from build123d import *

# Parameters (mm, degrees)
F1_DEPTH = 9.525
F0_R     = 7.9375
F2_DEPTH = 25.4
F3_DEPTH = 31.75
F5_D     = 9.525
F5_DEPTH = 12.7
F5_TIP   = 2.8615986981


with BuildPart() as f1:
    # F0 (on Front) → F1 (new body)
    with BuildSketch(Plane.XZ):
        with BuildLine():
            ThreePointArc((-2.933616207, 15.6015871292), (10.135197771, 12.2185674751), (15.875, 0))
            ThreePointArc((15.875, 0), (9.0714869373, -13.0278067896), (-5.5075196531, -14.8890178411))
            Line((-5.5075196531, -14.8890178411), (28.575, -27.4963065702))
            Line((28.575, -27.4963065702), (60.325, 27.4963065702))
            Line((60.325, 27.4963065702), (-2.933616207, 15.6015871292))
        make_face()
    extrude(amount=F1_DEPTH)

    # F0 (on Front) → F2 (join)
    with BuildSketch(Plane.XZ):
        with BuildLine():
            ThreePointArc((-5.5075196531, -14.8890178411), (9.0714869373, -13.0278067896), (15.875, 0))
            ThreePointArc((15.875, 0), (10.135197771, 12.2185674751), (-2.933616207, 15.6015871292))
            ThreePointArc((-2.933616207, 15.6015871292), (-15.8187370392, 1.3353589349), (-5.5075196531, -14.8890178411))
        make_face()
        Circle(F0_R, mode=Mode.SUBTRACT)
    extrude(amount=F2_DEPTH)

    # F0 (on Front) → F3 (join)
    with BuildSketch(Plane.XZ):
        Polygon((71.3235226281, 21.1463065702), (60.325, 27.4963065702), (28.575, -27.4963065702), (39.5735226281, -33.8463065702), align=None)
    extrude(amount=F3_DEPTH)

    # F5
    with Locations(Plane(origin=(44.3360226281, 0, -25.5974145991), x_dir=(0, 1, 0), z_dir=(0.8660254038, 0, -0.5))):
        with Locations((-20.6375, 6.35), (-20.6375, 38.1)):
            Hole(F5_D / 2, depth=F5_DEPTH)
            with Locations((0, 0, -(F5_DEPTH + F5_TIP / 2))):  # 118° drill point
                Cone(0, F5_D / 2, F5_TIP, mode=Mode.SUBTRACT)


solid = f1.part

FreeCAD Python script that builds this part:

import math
import FreeCAD as App
import Part
import Sketcher

V = App.Vector
Q = App.Units.Quantity

doc = App.newDocument("Part")
body = doc.addObject("PartDesign::Body", "Body")

# Sketch on XZ plane
sketch1 = body.newObject("Sketcher::SketchObject", "Sketch")
sketch1.AttachmentSupport = (doc.getObject("XZ_Plane"), [""])
sketch1.MapMode = "FlatFace"
sketch1.addGeometry([
    Part.ArcOfCircle(Part.Circle(V(0, 0, 0), V(0, 0, 1), 15.875), math.radians(0), math.radians(100.649164)),  # 0
    Part.ArcOfCircle(Part.Circle(V(0, 0, 0), V(0, 0, 1), 15.875), math.radians(-110.299677), math.radians(0)),  # 1
    Part.LineSegment(V(-5.50752, -14.889018, 0), V(28.575, -27.496307, 0)),  # 2
    Part.LineSegment(V(28.575, -27.496307, 0), V(60.325, 27.496307, 0)),  # 3
    Part.LineSegment(V(60.325, 27.496307, 0), V(-2.933616, 15.601587, 0)),  # 4
], False)
sketch1.addConstraint([
    Sketcher.Constraint("Tangent", 0, 1, 1, 2),
    Sketcher.Constraint("Tangent", 1, 1, 2, 1),
    Sketcher.Constraint("Coincident", 2, 2, 3, 1),
    Sketcher.Constraint("Coincident", 3, 2, 4, 1),
    Sketcher.Constraint("Tangent", 4, 2, 0, 2),
    Sketcher.Constraint("Coincident", 0, 3, -1, 1),
    Sketcher.Constraint("Equal", 0, 1),
    Sketcher.Constraint("PointOnObject", 0, 1, -1),
    Sketcher.Constraint("Angle", 3, Q("60 deg")),
    Sketcher.Constraint("Radius", 0, Q("0.625 in")),
    Sketcher.Constraint("Distance", 3, Q("2.5 in")),
    Sketcher.Constraint("DistanceX", 0, 1, 2, 2, Q("0.5 in")),
    Sketcher.Constraint("DistanceX", 1, 1, -1, 1, 5.50752),
])
pad1 = body.newObject("PartDesign::Pad", "Pad")
pad1.Profile = sketch1
pad1.Length = Q("0.375 in")

# Sketch on XZ plane
sketch2 = body.newObject("Sketcher::SketchObject", "Sketch001")
sketch2.AttachmentSupport = (doc.getObject("XZ_Plane"), [""])
sketch2.MapMode = "FlatFace"
sketch2.addGeometry([
    Part.ArcOfCircle(Part.Circle(V(0, 0, 0), V(0, 0, 1), 15.875), math.radians(-110.299677), math.radians(0)),
    Part.ArcOfCircle(Part.Circle(V(0, 0, 0), V(0, 0, 1), 15.875), math.radians(0), math.radians(100.649164)),
    Part.ArcOfCircle(Part.Circle(V(0, 0, 0), V(0, 0, 1), 15.875), math.radians(100.649164), math.radians(249.700323)),
    Part.Circle(V(0, 0, 0), V(0, 0, 1), 7.9375),
], False)
sketch2.addConstraint([
    Sketcher.Constraint("Tangent", 0, 2, 1, 1),
    Sketcher.Constraint("Tangent", 1, 2, 2, 1),
    Sketcher.Constraint("Tangent", 2, 2, 0, 1),
    Sketcher.Constraint("Coincident", 0, 3, -1, 1),
    Sketcher.Constraint("Coincident", 3, 3, -1, 1),
    Sketcher.Constraint("PointOnObject", 0, 2, -1),
    Sketcher.Constraint("Diameter", 3, Q("0.625 in")),
    Sketcher.Constraint("Radius", 0, Q("0.625 in")),
    Sketcher.Constraint("DistanceX", 2, 2, -1, 1, 5.50752),
    Sketcher.Constraint("DistanceX", 1, 2, -1, 1, 2.933616),
])
pad2 = body.newObject("PartDesign::Pad", "Pad001")
pad2.Profile = sketch2
pad2.Length = Q("1 in")

# Sketch on XZ plane
sketch3 = body.newObject("Sketcher::SketchObject", "Sketch002")
sketch3.AttachmentSupport = (doc.getObject("XZ_Plane"), [""])
sketch3.MapMode = "FlatFace"
sketch3.addGeometry([
    Part.LineSegment(V(71.323523, 21.146307, 0), V(60.325, 27.496307, 0)),
    Part.LineSegment(V(60.325, 27.496307, 0), V(28.575, -27.496307, 0)),
    Part.LineSegment(V(28.575, -27.496307, 0), V(39.573523, -33.846307, 0)),
    Part.LineSegment(V(39.573523, -33.846307, 0), V(71.323523, 21.146307, 0)),
], False)
sketch3.addConstraint([
    Sketcher.Constraint("Coincident", 0, 2, 1, 1),
    Sketcher.Constraint("Coincident", 1, 2, 2, 1),
    Sketcher.Constraint("Coincident", 2, 2, 3, 1),
    Sketcher.Constraint("Coincident", 3, 2, 0, 1),
    Sketcher.Constraint("Perpendicular", 0, 1),
    Sketcher.Constraint("Perpendicular", 1, 2),
    Sketcher.Constraint("Perpendicular", 2, 3),
    Sketcher.Constraint("Angle", 0, Q("150 deg")),
    Sketcher.Constraint("Distance", 0, Q("0.5 in")),
    Sketcher.Constraint("Distance", 1, Q("2.5 in")),
    Sketcher.Constraint("DistanceX", -1, 1, 0, 2, Q("2.375 in")),
    Sketcher.Constraint("DistanceY", -1, 1, 0, 2, 27.496307),
])
pad3 = body.newObject("PartDesign::Pad", "Pad002")
pad3.Profile = sketch3
pad3.Length = Q("1.25 in")

# Sketch on an angled plane
sketch4 = body.newObject("Sketcher::SketchObject", "Sketch003")
sketch4.Placement = App.Placement(V(44.336023, 0, -25.597415), App.Rotation(V(0, 1, 0), V(0.5, 0, 0.866025404), V(0.866025404, 0, -0.5), "ZXY"))
sketch4.addGeometry([
    Part.Circle(V(-20.6375, 6.35, 0), V(0, 0, 1), 4.7625),
    Part.Circle(V(-20.6375, 38.1, 0), V(0, 0, 1), 4.7625),
], False)
sketch4.addConstraint([
    Sketcher.Constraint("Equal", 0, 1),
    Sketcher.Constraint("Vertical", 0, 3, 1, 3),
    Sketcher.Constraint("Diameter", 0, Q("0.375 in")),
    Sketcher.Constraint("DistanceY", -1, 1, 1, 3, Q("1.5 in")),
    Sketcher.Constraint("DistanceY", -1, 1, 0, 3, Q("0.25 in")),
    Sketcher.Constraint("DistanceX", 0, 3, -1, 1, Q("0.8125 in")),
])
doc.recompute()
hole = body.newObject("PartDesign::Hole", "Hole")
hole.Profile = sketch4
hole.ThreadType = "None"
hole.Diameter = Q("0.375 in")
hole.DepthType = "Dimension"
hole.Depth = Q("0.5 in")
hole.DrillPoint = "Angled"
hole.DrillPointAngle = 118

doc.recompute()
